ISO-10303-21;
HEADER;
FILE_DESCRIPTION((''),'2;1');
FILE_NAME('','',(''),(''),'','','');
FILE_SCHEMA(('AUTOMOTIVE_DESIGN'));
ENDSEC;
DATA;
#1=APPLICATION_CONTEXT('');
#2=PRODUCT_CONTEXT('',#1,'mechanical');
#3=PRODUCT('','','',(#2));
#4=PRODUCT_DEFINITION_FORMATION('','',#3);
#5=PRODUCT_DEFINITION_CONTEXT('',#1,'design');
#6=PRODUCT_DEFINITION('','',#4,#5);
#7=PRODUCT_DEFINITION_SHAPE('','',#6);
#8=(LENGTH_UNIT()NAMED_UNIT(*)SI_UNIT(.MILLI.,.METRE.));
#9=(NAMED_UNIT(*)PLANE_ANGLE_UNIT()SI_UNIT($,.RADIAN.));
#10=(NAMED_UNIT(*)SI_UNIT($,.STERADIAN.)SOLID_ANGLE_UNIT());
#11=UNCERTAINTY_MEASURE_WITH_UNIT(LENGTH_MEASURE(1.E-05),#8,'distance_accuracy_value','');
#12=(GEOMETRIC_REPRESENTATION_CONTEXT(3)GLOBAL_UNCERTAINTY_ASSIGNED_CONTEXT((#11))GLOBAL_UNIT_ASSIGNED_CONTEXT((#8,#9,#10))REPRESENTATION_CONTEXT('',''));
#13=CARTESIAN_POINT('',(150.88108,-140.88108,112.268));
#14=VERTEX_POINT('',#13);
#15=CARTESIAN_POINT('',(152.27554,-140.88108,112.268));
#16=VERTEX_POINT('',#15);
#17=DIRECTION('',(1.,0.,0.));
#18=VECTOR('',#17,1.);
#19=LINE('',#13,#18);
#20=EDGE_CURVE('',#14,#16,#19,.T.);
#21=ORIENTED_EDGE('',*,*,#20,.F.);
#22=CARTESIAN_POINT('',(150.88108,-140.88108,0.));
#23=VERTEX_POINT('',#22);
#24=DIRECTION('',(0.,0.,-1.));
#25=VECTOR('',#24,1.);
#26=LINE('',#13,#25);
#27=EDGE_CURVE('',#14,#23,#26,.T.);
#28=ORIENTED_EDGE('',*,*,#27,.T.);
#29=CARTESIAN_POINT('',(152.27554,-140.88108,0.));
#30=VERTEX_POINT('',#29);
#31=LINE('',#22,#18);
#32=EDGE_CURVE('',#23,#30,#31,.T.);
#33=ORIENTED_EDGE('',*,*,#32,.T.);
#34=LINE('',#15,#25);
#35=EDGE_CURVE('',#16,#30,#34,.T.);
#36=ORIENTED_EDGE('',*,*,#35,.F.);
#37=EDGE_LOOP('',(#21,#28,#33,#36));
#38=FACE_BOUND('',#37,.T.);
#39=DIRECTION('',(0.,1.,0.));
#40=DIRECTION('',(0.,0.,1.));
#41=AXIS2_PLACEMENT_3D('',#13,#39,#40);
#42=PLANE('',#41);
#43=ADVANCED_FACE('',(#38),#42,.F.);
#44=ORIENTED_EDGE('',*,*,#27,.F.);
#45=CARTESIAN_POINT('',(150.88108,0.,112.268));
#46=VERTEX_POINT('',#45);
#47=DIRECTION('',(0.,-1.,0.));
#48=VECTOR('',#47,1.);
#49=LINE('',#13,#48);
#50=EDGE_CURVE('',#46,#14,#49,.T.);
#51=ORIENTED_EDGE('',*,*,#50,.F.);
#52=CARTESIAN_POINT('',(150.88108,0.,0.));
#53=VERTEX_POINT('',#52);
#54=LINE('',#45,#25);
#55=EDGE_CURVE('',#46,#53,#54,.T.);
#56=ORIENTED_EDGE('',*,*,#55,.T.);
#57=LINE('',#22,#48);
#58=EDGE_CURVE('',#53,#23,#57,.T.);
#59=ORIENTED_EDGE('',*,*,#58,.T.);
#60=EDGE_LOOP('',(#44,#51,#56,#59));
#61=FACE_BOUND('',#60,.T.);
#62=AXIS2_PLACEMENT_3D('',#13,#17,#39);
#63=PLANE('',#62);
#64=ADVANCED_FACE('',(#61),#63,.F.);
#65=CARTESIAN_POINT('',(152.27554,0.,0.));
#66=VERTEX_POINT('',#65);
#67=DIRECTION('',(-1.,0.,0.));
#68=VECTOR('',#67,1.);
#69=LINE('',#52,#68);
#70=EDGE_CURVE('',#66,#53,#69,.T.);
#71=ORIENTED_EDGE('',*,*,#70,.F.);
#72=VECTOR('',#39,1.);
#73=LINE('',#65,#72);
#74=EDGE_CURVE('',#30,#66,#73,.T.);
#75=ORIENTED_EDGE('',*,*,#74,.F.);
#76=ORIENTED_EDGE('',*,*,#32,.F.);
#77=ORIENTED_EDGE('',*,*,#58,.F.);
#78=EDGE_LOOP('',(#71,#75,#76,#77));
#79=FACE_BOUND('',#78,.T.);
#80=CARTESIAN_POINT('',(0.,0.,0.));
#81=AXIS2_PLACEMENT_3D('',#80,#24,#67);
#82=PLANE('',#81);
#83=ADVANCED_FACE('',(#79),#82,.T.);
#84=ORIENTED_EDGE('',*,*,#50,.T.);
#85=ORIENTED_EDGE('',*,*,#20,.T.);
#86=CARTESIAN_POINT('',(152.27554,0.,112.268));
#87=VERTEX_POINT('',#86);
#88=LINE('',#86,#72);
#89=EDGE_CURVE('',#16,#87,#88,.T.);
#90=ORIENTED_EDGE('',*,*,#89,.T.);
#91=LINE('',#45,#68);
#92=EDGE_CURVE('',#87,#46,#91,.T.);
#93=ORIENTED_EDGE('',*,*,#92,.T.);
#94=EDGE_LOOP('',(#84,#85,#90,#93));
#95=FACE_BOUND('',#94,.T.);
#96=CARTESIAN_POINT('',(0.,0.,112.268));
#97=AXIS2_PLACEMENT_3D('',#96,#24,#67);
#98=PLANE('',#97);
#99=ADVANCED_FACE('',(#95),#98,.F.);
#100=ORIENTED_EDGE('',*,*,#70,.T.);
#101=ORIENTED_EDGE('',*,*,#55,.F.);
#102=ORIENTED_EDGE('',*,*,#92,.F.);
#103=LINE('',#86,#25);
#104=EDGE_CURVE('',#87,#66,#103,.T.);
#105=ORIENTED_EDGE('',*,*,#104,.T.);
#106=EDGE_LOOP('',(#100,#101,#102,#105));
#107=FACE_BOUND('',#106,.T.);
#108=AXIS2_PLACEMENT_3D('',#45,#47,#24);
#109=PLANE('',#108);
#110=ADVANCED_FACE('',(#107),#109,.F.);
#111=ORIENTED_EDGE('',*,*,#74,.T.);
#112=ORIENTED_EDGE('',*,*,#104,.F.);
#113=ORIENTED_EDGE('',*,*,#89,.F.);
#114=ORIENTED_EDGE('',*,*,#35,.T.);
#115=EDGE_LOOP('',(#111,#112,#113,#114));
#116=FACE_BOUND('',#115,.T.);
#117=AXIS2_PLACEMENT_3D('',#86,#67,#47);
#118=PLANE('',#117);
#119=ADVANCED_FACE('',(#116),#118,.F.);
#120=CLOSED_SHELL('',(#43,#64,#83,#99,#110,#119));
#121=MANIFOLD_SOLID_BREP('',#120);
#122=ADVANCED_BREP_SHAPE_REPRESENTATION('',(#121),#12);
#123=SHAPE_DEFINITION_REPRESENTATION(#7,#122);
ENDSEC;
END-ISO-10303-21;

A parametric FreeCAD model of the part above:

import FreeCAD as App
import Part
import Sketcher
Q = App.Units.Quantity


def add_polygon(sketch, points):
    """Adds a closed chain of lines whose ends are joined by coincident constraints."""
    first, n = sketch.GeometryCount, len(points)
    for a, b in zip(points, points[1:] + points[:1]):
        sketch.addGeometry(Part.LineSegment(App.Vector(*a, 0), App.Vector(*b, 0)), False)
    for i in range(n):
        sketch.addConstraint(Sketcher.Constraint("Coincident", first + i, 2, first + (i + 1) % n, 1))

doc = App.newDocument("Part")
body = doc.addObject("PartDesign::Body", "Body")

# Sketch on XY plane
sketch1 = body.newObject("Sketcher::SketchObject", "Sketch")
sketch1.AttachmentSupport = (doc.getObject("XY_Plane"), [""])
sketch1.MapMode = "FlatFace"
add_polygon(sketch1, [(150.9, 0), (150.9, -140.9), (152.3, -140.9), (152.3, 0)])  # lines 0-3
sketch1.addConstraint([
    Sketcher.Constraint("Vertical", 0),
    Sketcher.Constraint("Horizontal", 1),
    Sketcher.Constraint("Vertical", 2),
    Sketcher.Constraint("Horizontal", 3),
    Sketcher.Constraint("PointOnObject", 2, 2, -1),
    Sketcher.Constraint("DistanceX", 1, 1, 1, 2, Q("0.0549 in")),
    Sketcher.Constraint("DistanceX", -1, 1, 0, 2, Q("5.9402 in")),
    Sketcher.Constraint("DistanceY", 0, 2, 0, 1, 140.88108),
])
pad1 = body.newObject("PartDesign::Pad", "Pad")
pad1.Profile = sketch1
pad1.Length = Q("4.42 in")

doc.recompute()
